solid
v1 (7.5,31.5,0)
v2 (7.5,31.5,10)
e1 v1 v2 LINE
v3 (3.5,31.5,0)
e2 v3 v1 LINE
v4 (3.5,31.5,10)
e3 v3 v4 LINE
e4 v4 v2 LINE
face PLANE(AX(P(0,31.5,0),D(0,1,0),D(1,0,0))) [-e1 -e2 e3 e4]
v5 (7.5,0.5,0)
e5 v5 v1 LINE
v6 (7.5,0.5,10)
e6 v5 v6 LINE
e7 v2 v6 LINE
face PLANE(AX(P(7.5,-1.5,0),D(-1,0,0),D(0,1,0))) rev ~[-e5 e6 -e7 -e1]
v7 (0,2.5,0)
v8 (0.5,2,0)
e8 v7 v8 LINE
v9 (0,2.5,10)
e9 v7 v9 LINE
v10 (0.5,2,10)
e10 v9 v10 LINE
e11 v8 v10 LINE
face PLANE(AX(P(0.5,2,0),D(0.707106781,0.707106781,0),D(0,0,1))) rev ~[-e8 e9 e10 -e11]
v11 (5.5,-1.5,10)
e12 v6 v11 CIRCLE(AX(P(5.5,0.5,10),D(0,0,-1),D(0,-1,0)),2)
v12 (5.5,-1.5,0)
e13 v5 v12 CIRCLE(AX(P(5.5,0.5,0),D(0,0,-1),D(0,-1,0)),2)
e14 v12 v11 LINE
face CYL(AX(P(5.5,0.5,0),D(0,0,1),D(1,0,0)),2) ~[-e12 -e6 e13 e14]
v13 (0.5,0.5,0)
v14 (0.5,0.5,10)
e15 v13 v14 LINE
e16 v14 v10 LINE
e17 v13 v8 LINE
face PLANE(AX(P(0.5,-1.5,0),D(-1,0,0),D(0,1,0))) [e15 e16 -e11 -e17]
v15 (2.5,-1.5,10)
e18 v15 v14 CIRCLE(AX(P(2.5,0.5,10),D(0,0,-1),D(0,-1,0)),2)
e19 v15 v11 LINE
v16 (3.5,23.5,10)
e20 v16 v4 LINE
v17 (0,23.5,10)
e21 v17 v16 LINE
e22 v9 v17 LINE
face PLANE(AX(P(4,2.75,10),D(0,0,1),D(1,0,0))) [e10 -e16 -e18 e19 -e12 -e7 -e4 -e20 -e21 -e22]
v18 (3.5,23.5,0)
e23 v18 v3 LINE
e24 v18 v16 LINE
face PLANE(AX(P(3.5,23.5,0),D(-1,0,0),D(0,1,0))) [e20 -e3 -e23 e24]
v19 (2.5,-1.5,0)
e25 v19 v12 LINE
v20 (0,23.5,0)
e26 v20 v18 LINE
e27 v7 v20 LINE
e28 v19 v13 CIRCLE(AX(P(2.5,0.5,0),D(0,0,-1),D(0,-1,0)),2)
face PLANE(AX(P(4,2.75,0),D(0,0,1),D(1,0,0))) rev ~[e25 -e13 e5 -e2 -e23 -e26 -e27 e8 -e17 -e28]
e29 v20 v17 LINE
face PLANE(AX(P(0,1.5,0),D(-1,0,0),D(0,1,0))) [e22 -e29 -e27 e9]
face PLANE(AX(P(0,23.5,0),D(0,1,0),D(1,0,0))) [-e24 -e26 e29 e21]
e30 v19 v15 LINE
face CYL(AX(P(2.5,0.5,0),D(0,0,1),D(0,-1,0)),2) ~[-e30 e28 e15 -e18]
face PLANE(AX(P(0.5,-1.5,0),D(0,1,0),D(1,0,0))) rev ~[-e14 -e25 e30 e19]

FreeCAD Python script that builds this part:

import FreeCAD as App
import Part
import Sketcher


def edges_at(feature, points):
    """Names of the edges that pass closest to the given points."""
    edges = feature.Shape.Edges
    near = lambda p: min(range(len(edges)), key=lambda i: edges[i].distToShape(Part.Vertex(*p))[0])
    return sorted({f"Edge{near(p) + 1}" for p in points})

doc = App.newDocument("Part")
body = doc.addObject("PartDesign::Body", "Body")

sketch1 = body.newObject("Sketcher::SketchObject", "Sketch")
sketch1.AttachmentSupport = (doc.getObject("XY_Plane"), [""])
sketch1.MapMode = "FlatFace"
sketch1.addGeometry(Part.LineSegment(App.Vector(0.5, 7, 0), App.Vector(0.5, -1.5, 0)), False)
sketch1.addGeometry(Part.LineSegment(App.Vector(0.5, -1.5, 0), App.Vector(7.5, -1.5, 0)), False)
sketch1.addGeometry(Part.LineSegment(App.Vector(7.5, -1.5, 0), App.Vector(7.5, 7, 0)), False)
sketch1.addGeometry(Part.LineSegment(App.Vector(7.5, 7, 0), App.Vector(0.5, 7, 0)), False)
sketch1.addConstraint(Sketcher.Constraint("Coincident", 0, 2, 1, 1))
sketch1.addConstraint(Sketcher.Constraint("Coincident", 1, 2, 2, 1))
sketch1.addConstraint(Sketcher.Constraint("Coincident", 2, 2, 3, 1))
sketch1.addConstraint(Sketcher.Constraint("Coincident", 3, 2, 0, 1))
sketch1.addConstraint(Sketcher.Constraint("Vertical", 0))
sketch1.addConstraint(Sketcher.Constraint("Horizontal", 1))
sketch1.addConstraint(Sketcher.Constraint("Vertical", 2))
sketch1.addConstraint(Sketcher.Constraint("Horizontal", 3))
sketch1.addConstraint(Sketcher.Constraint("DistanceX", 1, 1, 1, 2, 7.0))
sketch1.addConstraint(Sketcher.Constraint("DistanceY", 0, 2, 0, 1, 8.5))
sketch1.addConstraint(Sketcher.Constraint("DistanceY", -1, 1, 2, 2, 7.0))
sketch1.addConstraint(Sketcher.Constraint("DistanceX", -1, 1, 0, 2, 0.5))
pad1 = body.newObject("PartDesign::Pad", "Pad")
pad1.Profile = sketch1
pad1.Length = 10
doc.recompute()

chamfer = body.newObject("PartDesign::Chamfer", "Chamfer")
chamfer.Base = (pad1, edges_at(pad1, [(7.5, 7, 5)]))
chamfer.Size = 2.5
doc.recompute()

fillet = body.newObject("PartDesign::Fillet", "Fillet")
fillet.Base = (chamfer, edges_at(chamfer, [(7.5, -1.5, 5), (0.5, -1.5, 5)]))
fillet.Radius = 2
body2 = doc.addObject("PartDesign::Body", "Body001")

sketch2 = body2.newObject("Sketcher::SketchObject", "Sketch001")
sketch2.AttachmentSupport = (doc.getObject("XY_Plane001"), [""])
sketch2.MapMode = "FlatFace"
sketch2.addGeometry(Part.LineSegment(App.Vector(0, 31.5, 0), App.Vector(0, 23.5, 0)), False)
sketch2.addGeometry(Part.LineSegment(App.Vector(0, 23.5, 0), App.Vector(3.5, 23.5, 0)), False)
sketch2.addGeometry(Part.LineSegment(App.Vector(3.5, 23.5, 0), App.Vector(3.5, 31.5, 0)), False)
sketch2.addGeometry(Part.LineSegment(App.Vector(3.5, 31.5, 0), App.Vector(0, 31.5, 0)), False)
sketch2.addConstraint(Sketcher.Constraint("Coincident", 0, 2, 1, 1))
sketch2.addConstraint(Sketcher.Constraint("Coincident", 1, 2, 2, 1))
sketch2.addConstraint(Sketcher.Constraint("Coincident", 2, 2, 3, 1))
sketch2.addConstraint(Sketcher.Constraint("Coincident", 3, 2, 0, 1))
sketch2.addConstraint(Sketcher.Constraint("Vertical", 0))
sketch2.addConstraint(Sketcher.Constraint("Horizontal", 1))
sketch2.addConstraint(Sketcher.Constraint("Vertical", 2))
sketch2.addConstraint(Sketcher.Constraint("Horizontal", 3))
sketch2.addConstraint(Sketcher.Constraint("PointOnObject", 0, 2, -2))
sketch2.addConstraint(Sketcher.Constraint("DistanceY", 0, 2, 0, 1, 8.0))
sketch2.addConstraint(Sketcher.Constraint("DistanceX", 1, 1, 1, 2, 3.5))
sketch2.addConstraint(Sketcher.Constraint("DistanceY", -1, 1, 0, 2, 23.5))
pad2 = body2.newObject("PartDesign::Pad", "Pad001")
pad2.Profile = sketch2
pad2.Length = 10
body3 = doc.addObject("PartDesign::Body", "Body002")

sketch3 = body3.newObject("Sketcher::SketchObject", "Sketch002")
sketch3.AttachmentSupport = (doc.getObject("XY_Plane002"), [""])
sketch3.MapMode = "FlatFace"
sketch3.addGeometry(Part.LineSegment(App.Vector(0, 31.5, 0), App.Vector(0, 1.5, 0)), False)
sketch3.addGeometry(Part.LineSegment(App.Vector(0, 1.5, 0), App.Vector(7.5, 1.5, 0)), False)
sketch3.addGeometry(Part.LineSegment(App.Vector(7.5, 1.5, 0), App.Vector(7.5, 31.5, 0)), False)
sketch3.addGeometry(Part.LineSegment(App.Vector(7.5, 31.5, 0), App.Vector(0, 31.5, 0)), False)
sketch3.addConstraint(Sketcher.Constraint("Coincident", 0, 2, 1, 1))
sketch3.addConstraint(Sketcher.Constraint("Coincident", 1, 2, 2, 1))
sketch3.addConstraint(Sketcher.Constraint("Coincident", 2, 2, 3, 1))
sketch3.addConstraint(Sketcher.Constraint("Coincident", 3, 2, 0, 1))
sketch3.addConstraint(Sketcher.Constraint("Vertical", 0))
sketch3.addConstraint(Sketcher.Constraint("Horizontal", 1))
sketch3.addConstraint(Sketcher.Constraint("Vertical", 2))
sketch3.addConstraint(Sketcher.Constraint("Horizontal", 3))
sketch3.addConstraint(Sketcher.Constraint("PointOnObject", 0, 2, -2))
sketch3.addConstraint(Sketcher.Constraint("DistanceY", 0, 2, 0, 1, 30.0))
sketch3.addConstraint(Sketcher.Constraint("DistanceX", 1, 1, 1, 2, 7.5))
sketch3.addConstraint(Sketcher.Constraint("DistanceY", -1, 1, 0, 2, 1.5))
pad3 = body3.newObject("PartDesign::Pad", "Pad002")
pad3.Profile = sketch3
pad3.Length = 10
doc.recompute()

chamfer2 = body3.newObject("PartDesign::Chamfer", "Chamfer001")
chamfer2.Base = (pad3, edges_at(pad3, [(0, 1.5, 5)]))
chamfer2.Size = 1
doc.recompute()

boolean = body3.newObject("PartDesign::Boolean", "Boolean")
boolean.Type = "Cut"
boolean.addObjects([body2])
doc.recompute()

boolean2 = body3.newObject("PartDesign::Boolean", "Boolean001")
boolean2.Type = "Fuse"
boolean2.addObjects([body])

doc.recompute()
